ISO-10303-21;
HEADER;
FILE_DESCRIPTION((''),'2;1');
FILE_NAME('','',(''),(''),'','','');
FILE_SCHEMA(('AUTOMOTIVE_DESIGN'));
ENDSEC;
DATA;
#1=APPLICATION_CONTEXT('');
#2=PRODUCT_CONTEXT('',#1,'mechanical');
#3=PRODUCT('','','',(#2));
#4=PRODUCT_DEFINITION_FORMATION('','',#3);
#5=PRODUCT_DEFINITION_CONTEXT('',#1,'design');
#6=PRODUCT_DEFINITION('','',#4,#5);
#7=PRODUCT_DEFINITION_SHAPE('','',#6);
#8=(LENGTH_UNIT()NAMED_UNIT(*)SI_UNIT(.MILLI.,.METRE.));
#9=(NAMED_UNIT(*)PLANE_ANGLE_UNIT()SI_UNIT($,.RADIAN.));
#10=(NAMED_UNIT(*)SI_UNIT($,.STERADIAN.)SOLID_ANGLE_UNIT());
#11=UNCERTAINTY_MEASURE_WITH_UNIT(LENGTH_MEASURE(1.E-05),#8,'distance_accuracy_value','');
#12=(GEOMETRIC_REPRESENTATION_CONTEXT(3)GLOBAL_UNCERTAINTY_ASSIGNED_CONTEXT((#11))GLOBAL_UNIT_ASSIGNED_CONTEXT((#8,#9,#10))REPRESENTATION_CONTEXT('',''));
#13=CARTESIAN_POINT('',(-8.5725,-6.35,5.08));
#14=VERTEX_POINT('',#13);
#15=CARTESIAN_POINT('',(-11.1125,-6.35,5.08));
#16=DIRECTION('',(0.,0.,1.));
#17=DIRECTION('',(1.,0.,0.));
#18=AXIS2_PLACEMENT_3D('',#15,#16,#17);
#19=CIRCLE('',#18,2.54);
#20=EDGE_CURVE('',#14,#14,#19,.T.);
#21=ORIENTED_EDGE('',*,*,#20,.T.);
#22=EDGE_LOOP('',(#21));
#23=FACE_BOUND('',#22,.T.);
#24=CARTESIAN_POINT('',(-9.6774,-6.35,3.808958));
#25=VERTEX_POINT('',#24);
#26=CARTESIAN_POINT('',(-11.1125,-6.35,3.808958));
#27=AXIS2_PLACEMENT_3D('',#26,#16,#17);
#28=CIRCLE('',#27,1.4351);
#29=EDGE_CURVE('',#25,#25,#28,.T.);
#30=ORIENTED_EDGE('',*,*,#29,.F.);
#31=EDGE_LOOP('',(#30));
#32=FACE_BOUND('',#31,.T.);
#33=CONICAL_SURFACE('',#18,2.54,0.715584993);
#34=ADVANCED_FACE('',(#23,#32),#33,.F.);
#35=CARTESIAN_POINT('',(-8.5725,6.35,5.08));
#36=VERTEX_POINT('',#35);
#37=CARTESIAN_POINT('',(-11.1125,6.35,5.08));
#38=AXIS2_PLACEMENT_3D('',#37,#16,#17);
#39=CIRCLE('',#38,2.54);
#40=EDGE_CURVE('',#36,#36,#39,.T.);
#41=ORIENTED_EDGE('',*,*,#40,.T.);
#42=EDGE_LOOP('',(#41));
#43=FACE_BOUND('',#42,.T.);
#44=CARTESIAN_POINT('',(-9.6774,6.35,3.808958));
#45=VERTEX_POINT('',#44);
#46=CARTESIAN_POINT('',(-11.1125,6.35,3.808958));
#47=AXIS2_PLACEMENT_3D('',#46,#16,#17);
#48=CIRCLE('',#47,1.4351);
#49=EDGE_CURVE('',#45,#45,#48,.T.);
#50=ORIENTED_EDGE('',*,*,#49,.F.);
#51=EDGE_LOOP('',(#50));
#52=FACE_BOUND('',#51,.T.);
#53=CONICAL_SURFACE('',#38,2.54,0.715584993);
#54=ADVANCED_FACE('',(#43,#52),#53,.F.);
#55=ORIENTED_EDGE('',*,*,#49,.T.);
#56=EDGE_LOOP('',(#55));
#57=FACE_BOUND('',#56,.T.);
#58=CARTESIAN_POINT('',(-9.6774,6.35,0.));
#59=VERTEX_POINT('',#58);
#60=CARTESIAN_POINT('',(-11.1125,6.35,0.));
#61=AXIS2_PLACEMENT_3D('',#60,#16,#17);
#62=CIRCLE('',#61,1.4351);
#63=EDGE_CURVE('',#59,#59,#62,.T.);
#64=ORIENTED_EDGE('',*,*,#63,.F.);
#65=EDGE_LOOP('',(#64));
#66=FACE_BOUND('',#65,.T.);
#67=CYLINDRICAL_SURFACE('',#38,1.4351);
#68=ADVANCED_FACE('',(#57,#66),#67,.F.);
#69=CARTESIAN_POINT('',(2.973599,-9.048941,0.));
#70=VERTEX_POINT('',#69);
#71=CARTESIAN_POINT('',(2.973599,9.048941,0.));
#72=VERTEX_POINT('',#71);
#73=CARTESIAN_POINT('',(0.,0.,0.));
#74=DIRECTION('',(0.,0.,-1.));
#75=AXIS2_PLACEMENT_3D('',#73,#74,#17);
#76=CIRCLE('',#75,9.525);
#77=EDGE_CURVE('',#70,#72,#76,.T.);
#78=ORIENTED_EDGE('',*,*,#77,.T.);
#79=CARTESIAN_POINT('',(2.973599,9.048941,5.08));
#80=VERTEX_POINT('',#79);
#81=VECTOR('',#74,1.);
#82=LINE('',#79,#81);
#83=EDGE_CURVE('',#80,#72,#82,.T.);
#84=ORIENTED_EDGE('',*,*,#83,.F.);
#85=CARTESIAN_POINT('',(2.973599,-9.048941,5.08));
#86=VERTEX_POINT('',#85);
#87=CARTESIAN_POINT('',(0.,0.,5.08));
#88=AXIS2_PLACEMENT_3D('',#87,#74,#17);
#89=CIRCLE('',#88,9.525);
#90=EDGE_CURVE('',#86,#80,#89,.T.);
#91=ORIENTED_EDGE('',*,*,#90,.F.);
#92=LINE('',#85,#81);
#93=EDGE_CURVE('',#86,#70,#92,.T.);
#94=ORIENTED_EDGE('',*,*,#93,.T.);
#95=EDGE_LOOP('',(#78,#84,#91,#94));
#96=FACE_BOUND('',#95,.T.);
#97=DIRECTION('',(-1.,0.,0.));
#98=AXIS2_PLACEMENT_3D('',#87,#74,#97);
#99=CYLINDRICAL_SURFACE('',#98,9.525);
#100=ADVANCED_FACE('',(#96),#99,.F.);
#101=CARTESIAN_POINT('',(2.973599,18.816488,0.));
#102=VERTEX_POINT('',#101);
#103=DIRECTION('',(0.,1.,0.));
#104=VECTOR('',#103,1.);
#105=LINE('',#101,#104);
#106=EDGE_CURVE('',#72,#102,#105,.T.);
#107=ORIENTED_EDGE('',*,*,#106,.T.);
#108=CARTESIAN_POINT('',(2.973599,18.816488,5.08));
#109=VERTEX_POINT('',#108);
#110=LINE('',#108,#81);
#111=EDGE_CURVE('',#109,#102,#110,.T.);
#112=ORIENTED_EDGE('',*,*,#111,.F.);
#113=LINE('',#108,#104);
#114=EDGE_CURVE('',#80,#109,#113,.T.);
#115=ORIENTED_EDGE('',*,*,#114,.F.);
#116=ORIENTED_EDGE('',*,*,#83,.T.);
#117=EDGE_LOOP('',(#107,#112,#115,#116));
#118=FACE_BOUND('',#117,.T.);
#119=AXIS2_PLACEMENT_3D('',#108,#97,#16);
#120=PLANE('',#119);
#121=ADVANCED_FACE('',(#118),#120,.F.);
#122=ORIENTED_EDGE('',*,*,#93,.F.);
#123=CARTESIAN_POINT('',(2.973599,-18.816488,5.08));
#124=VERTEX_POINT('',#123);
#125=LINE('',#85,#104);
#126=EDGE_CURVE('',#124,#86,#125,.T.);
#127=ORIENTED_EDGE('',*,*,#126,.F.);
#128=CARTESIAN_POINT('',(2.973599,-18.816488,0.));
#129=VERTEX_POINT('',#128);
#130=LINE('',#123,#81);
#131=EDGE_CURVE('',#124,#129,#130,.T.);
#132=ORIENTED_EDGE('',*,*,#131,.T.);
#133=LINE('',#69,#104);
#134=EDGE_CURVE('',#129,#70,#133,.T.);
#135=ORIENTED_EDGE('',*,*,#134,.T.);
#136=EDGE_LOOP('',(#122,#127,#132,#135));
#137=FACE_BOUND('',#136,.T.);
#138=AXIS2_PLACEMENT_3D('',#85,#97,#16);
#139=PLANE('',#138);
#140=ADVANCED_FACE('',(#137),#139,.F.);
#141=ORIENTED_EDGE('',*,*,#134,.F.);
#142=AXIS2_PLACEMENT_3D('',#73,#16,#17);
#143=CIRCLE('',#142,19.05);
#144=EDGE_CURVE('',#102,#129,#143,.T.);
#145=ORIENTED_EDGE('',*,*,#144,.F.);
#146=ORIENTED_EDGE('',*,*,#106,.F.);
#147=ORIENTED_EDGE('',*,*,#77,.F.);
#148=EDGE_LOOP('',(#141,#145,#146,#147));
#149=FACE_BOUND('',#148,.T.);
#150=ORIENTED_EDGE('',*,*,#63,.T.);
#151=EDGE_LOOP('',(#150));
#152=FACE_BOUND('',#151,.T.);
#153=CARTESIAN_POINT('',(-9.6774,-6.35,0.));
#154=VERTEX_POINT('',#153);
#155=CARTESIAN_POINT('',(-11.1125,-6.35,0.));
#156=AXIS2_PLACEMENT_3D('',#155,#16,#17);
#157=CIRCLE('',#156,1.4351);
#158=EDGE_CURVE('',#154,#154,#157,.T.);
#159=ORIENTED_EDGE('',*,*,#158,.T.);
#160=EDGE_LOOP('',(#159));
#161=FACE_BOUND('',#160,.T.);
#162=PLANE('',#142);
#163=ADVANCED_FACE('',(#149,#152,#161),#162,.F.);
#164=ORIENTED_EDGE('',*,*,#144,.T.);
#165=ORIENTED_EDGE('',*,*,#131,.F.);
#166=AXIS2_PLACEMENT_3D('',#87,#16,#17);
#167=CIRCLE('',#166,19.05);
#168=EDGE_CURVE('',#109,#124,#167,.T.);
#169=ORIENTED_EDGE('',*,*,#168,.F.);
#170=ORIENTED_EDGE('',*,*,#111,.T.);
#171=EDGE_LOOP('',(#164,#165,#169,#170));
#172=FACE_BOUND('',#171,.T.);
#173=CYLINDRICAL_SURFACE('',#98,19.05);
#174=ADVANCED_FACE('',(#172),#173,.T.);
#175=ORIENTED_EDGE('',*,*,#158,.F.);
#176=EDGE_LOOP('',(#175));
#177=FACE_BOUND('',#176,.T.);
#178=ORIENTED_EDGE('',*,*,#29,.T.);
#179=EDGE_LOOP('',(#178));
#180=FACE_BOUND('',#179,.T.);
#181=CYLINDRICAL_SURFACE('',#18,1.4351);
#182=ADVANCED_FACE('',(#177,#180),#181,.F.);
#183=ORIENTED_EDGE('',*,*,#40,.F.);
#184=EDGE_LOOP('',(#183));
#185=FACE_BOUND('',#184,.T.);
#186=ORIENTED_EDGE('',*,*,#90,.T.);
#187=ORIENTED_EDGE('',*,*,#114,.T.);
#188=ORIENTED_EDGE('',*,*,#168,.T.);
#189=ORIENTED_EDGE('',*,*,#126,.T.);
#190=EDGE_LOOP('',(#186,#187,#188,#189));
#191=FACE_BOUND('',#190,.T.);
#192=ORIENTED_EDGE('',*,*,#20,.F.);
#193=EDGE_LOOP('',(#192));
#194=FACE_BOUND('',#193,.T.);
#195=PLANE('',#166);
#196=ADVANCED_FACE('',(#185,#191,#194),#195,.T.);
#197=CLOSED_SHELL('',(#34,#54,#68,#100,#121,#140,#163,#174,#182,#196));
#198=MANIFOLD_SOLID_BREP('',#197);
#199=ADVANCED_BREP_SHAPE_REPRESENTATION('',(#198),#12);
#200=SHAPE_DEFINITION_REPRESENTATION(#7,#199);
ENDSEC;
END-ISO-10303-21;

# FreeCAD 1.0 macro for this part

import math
import FreeCAD as App
import Part
import Sketcher
from FreeCAD import Vector
Q = App.Units.Quantity

doc = App.newDocument("Part")
params = doc.addObject("Spreadsheet::Sheet", "Params")
for row, (alias, value) in enumerate([
    ("sketch1_radius", "0.75 in"),
    ("sketch1_radius2", "0.375 in"),
    ("pad1_length", "0.2 in"),
    ("sketch2_diameter", "0.113 in"),
    ("hole_diameter", "0.113 in"),
    ("hole_csink_diameter", "0.2 in"),
], start=1):
    params.set(f"A{row}", alias)
    params.set(f"B{row}", "=" + value)
    params.setAlias(f"B{row}", alias)

body = doc.addObject("PartDesign::Body", "Body")

# Sketch on XY plane
sketch1 = body.newObject("Sketcher::SketchObject", "Sketch")
sketch1.AttachmentSupport = (doc.getObject("XY_Plane"), [""])
sketch1.MapMode = "FlatFace"
sketch1.addGeometry([
    Part.LineSegment(Vector(3, 9, 0), Vector(3, 19, 0)),
    Part.ArcOfCircle(Part.Circle(Vector(0, 0, 0), Vector(0, 0, 1), 19), math.radians(81), math.radians(279)),
    Part.LineSegment(Vector(3, -19, 0), Vector(3, -9, 0)),
    Part.ArcOfCircle(Part.Circle(Vector(0, 0, 0), Vector(0, 0, 1), 10), math.radians(72), math.radians(288)),
], False)
sketch1.addConstraint([
    Sketcher.Constraint("Coincident", 0, 2, 1, 1),
    Sketcher.Constraint("Coincident", 1, 2, 2, 1),
    Sketcher.Constraint("Coincident", 2, 2, 3, 2),
    Sketcher.Constraint("Coincident", 3, 1, 0, 1),
    Sketcher.Constraint("Vertical", 0),
    Sketcher.Constraint("Vertical", 2),
    Sketcher.Constraint("Coincident", 1, 3, -1, 1),
    Sketcher.Constraint("Coincident", 3, 3, -1, 1),
    Sketcher.Constraint("Vertical", 0, 2, 1, 2),
    Sketcher.Constraint("Radius", 1, Q("0.75 in")),
    Sketcher.Constraint("Radius", 3, Q("0.375 in")),
    Sketcher.Constraint("DistanceX", -1, 1, 0, 2, Q("2.973599 mm")),
])
sketch1.setExpression("Constraints[9]", "Params.sketch1_radius")
sketch1.setExpression("Constraints[10]", "Params.sketch1_radius2")
pad1 = body.newObject("PartDesign::Pad", "Pad")
pad1.Profile = sketch1
pad1.setExpression("Length", "Params.pad1_length")

# Sketch on XY plane
sketch2 = body.newObject("Sketcher::SketchObject", "Sketch001")
sketch2.AttachmentSupport = (doc.getObject("XY_Plane"), [""])
sketch2.MapMode = "FlatFace"
sketch2.AttachmentOffset = App.Placement(Vector(0, 0, 0.2 * 25.4), App.Rotation())
sketch2.addGeometry([
    Part.Circle(Vector(-11.1, 6.3, 0), Vector(0, 0, 1), 1.4),
    Part.Circle(Vector(-11.1, -6.3, 0), Vector(0, 0, 1), 1.4),
], False)
sketch2.addConstraint([
    Sketcher.Constraint("Equal", 0, 1),
    Sketcher.Constraint("Symmetric", 0, 3, 1, 3, -1),
    Sketcher.Constraint("Diameter", 0, Q("0.113 in")),
    Sketcher.Constraint("DistanceY", 1, 3, 0, 3, Q("0.5 in")),
    Sketcher.Constraint("DistanceX", 0, 3, -1, 1, Q("0.4375 in")),
])
sketch2.setExpression("Constraints[2]", "Params.sketch2_diameter")
doc.recompute()
hole = body.newObject("PartDesign::Hole", "Hole")
hole.Profile = sketch2
hole.ThreadType = "None"
hole.setExpression("Diameter", "Params.hole_diameter")
hole.DepthType = "ThroughAll"
hole.HoleCutType = "Countersink"
hole.setExpression("HoleCutDiameter", "Params.hole_csink_diameter")
hole.HoleCutCountersinkAngle = 82

doc.recompute()
